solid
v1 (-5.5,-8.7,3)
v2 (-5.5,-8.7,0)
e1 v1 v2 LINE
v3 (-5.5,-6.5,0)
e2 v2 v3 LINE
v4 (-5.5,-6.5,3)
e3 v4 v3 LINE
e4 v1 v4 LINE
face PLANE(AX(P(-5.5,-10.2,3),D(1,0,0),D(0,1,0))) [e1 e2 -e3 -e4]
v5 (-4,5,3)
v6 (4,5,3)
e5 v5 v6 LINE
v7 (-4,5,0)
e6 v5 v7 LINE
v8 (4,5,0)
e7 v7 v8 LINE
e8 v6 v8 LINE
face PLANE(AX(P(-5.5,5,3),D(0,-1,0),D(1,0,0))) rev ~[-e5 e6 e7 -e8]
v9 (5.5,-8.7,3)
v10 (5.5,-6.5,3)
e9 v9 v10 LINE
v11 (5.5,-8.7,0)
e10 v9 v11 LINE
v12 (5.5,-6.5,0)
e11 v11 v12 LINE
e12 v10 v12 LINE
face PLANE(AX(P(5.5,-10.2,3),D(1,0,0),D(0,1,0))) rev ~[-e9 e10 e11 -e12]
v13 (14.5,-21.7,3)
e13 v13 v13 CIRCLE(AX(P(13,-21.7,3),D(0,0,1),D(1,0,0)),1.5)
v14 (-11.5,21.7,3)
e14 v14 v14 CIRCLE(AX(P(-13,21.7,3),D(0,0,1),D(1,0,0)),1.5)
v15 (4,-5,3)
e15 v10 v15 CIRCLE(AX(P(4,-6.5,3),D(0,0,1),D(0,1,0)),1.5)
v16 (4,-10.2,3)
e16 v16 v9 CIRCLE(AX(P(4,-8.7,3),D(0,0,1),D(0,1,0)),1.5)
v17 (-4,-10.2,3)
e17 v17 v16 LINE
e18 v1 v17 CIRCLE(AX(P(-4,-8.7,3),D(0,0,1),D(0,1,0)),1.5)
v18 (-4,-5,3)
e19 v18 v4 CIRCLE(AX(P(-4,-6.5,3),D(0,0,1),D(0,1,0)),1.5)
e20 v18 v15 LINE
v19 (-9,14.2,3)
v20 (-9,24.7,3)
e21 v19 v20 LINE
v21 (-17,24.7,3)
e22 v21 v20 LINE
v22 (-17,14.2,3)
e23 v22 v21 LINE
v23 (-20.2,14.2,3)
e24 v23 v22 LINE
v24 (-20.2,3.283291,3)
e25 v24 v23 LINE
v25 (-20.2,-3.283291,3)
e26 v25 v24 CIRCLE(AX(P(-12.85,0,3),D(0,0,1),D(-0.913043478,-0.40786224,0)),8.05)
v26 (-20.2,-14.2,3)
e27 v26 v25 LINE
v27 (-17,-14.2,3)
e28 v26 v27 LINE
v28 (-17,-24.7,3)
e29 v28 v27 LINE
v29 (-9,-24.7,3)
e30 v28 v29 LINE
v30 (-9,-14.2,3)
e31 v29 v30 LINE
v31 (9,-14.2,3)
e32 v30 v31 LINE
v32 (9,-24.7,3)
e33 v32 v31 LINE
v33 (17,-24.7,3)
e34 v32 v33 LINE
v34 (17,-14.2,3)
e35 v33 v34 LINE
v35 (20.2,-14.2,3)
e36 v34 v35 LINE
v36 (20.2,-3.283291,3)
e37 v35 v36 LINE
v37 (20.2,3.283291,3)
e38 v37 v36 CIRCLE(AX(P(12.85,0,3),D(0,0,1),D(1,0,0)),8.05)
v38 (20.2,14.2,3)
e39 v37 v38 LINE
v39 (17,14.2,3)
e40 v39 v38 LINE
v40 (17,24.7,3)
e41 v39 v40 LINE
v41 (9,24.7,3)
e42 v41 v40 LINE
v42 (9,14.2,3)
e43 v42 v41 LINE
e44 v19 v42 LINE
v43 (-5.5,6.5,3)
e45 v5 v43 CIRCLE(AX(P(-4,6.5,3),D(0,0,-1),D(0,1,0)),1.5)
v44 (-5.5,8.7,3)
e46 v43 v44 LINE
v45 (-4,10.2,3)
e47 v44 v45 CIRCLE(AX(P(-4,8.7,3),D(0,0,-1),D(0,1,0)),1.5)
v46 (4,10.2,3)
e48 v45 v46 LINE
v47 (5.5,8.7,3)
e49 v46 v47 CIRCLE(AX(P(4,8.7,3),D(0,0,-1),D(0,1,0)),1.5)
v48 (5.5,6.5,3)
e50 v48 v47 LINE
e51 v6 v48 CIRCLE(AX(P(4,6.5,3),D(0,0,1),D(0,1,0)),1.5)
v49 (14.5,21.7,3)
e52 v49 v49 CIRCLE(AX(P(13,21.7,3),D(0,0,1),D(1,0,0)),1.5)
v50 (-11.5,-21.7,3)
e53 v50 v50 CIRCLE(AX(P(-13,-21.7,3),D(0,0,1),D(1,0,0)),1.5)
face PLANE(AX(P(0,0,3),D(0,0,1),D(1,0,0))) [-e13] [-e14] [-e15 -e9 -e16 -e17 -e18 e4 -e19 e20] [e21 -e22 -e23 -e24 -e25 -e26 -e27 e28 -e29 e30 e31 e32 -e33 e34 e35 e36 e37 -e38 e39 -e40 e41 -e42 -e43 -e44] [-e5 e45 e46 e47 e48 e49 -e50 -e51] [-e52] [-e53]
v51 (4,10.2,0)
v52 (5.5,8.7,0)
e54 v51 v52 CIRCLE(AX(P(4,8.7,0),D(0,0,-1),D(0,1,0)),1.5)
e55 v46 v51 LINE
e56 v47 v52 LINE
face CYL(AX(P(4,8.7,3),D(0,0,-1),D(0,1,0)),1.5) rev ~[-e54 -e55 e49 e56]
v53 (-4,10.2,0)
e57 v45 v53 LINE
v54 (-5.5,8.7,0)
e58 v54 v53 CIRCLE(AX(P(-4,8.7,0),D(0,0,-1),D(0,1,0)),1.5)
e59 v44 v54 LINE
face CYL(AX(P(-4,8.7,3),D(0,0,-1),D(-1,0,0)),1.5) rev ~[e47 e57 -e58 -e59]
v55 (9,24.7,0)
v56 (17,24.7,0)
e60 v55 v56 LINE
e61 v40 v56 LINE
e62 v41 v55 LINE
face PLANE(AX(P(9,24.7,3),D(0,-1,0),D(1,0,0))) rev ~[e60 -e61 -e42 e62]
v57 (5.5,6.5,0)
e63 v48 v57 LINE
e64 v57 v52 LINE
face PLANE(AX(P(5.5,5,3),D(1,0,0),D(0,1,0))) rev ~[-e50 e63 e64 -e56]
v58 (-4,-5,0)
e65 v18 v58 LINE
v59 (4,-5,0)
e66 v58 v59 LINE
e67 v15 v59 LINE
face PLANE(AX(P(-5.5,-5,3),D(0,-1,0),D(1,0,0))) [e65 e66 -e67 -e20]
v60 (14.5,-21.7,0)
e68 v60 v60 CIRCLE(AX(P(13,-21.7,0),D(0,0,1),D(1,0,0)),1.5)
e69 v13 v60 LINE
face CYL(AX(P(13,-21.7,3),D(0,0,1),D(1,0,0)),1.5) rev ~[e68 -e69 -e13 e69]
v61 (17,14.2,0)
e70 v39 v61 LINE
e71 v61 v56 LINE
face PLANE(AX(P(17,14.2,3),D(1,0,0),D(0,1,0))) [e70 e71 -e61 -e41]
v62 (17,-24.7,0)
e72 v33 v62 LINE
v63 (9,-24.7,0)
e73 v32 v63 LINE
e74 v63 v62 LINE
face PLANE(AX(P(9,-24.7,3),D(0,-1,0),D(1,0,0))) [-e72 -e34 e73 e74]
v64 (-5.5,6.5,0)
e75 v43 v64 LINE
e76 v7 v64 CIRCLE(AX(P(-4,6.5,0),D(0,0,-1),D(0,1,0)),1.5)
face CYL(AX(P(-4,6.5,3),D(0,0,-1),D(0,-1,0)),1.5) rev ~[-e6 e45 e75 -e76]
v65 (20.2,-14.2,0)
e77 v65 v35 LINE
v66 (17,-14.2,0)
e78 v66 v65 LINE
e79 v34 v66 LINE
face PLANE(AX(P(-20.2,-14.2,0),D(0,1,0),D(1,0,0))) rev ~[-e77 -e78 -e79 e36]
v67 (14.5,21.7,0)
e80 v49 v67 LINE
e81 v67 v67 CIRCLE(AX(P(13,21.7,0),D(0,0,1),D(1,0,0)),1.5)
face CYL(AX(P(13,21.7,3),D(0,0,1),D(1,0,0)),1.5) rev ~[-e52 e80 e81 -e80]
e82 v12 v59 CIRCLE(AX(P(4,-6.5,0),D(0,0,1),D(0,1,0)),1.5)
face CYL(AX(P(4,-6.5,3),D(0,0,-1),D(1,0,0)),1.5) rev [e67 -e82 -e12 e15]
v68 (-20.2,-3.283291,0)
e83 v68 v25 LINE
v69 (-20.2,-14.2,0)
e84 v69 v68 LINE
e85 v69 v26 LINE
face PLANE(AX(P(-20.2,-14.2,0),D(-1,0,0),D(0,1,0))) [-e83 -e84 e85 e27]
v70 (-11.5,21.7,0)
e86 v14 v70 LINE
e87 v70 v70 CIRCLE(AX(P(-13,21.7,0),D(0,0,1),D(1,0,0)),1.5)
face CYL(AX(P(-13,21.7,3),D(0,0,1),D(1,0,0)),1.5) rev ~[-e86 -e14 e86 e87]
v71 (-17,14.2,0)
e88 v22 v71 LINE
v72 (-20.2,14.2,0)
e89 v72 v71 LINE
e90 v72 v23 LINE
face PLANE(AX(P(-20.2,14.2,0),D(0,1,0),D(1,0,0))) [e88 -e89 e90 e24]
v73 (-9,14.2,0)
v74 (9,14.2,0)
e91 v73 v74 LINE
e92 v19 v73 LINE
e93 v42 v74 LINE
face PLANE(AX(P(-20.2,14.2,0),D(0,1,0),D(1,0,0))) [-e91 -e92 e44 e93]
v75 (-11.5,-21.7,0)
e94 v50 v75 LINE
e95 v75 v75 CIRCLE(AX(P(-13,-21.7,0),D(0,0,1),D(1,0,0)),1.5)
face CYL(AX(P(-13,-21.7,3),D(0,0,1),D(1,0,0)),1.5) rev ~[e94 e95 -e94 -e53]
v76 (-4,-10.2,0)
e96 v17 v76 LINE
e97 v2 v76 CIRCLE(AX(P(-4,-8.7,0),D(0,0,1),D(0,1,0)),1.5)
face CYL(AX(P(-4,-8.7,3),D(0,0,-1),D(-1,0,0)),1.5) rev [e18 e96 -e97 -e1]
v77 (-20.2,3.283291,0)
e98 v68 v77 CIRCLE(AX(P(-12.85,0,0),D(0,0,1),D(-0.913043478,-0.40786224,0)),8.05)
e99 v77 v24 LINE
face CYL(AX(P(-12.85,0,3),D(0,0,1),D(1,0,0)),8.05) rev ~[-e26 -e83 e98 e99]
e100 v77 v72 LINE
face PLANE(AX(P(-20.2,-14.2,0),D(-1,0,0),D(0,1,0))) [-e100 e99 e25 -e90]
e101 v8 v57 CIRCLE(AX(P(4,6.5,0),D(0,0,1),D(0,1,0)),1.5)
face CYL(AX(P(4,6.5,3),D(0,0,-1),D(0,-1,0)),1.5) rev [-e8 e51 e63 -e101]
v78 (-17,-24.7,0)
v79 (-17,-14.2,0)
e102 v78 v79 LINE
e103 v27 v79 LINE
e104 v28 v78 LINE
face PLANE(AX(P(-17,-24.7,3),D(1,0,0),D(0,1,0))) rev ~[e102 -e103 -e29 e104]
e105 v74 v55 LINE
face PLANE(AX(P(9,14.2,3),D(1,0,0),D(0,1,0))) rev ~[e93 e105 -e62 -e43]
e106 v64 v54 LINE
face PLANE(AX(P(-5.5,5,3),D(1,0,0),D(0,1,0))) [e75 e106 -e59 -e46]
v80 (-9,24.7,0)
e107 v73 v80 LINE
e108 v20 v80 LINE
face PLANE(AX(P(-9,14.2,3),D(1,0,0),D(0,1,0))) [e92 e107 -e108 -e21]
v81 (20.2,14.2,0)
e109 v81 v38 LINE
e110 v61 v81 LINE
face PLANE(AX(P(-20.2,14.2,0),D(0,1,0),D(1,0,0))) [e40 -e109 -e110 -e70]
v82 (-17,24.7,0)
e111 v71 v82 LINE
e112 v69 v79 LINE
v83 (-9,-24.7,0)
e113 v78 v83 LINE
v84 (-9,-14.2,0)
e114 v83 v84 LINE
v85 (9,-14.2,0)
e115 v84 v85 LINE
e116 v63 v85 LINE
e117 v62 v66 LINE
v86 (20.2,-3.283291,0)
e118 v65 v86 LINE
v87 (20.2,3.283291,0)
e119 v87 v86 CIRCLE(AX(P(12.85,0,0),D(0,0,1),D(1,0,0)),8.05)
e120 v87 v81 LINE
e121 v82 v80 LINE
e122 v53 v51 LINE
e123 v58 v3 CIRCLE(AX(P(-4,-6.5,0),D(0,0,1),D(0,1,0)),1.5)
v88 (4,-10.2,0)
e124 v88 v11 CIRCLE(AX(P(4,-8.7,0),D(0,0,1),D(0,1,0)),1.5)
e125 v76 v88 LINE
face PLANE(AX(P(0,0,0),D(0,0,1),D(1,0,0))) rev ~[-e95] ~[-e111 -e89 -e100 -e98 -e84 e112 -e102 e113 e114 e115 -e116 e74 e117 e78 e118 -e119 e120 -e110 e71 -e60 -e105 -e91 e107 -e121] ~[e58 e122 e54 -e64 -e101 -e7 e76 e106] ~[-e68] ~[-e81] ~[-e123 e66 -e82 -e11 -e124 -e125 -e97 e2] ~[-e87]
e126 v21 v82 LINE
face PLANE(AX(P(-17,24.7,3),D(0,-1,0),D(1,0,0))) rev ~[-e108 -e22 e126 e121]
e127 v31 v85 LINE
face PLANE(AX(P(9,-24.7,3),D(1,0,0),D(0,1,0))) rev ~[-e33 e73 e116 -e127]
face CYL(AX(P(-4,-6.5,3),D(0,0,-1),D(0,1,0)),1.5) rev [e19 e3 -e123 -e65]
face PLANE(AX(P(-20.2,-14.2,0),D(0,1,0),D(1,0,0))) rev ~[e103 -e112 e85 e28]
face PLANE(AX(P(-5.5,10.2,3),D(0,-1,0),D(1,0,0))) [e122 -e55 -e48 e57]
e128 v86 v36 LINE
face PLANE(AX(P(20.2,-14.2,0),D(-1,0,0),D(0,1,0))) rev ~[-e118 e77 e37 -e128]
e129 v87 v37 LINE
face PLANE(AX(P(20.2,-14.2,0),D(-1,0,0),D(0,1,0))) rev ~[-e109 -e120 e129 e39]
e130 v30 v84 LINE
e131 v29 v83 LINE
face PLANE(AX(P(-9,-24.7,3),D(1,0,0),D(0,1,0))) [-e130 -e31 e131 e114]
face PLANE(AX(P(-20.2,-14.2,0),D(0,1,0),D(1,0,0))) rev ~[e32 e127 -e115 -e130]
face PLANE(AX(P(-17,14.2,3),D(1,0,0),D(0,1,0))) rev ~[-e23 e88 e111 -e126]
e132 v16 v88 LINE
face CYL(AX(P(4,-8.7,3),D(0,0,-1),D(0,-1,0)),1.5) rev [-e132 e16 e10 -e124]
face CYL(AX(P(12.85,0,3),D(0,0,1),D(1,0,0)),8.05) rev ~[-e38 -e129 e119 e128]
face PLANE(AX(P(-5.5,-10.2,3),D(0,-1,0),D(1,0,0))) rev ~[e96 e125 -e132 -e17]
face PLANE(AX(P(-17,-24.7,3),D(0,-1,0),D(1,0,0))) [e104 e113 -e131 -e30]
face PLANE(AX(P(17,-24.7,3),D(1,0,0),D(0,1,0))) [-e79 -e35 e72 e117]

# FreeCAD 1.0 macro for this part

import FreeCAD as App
import Part
import Sketcher


def edges_at(feature, points):
    """Names of the edges that pass closest to the given points."""
    edges = feature.Shape.Edges
    near = lambda p: min(range(len(edges)), key=lambda i: edges[i].distToShape(Part.Vertex(*p))[0])
    return sorted({f"Edge{near(p) + 1}" for p in points})


def add_polygon(sketch, points):
    """Adds a closed chain of lines whose ends are joined by coincident constraints."""
    first, n = sketch.GeometryCount, len(points)
    for a, b in zip(points, points[1:] + points[:1]):
        sketch.addGeometry(Part.LineSegment(App.Vector(*a, 0), App.Vector(*b, 0)), False)
    for i in range(n):
        sketch.addConstraint(Sketcher.Constraint("Coincident", first + i, 2, first + (i + 1) % n, 1))

doc = App.newDocument("Part")
body = doc.addObject("PartDesign::Body", "Body")

# Sketch on XY plane
sketch1 = body.newObject("Sketcher::SketchObject", "Sketch")
sketch1.AttachmentSupport = (doc.getObject("XY_Plane"), [""])
sketch1.MapMode = "FlatFace"
add_polygon(sketch1, [(-20.2, 14.2), (-20.2, -14.2), (20.2, -14.2), (20.2, 14.2)])  # lines 0-3
sketch1.addConstraint(Sketcher.Constraint("Vertical", 0))
sketch1.addConstraint(Sketcher.Constraint("Horizontal", 1))
sketch1.addConstraint(Sketcher.Constraint("Vertical", 2))
sketch1.addConstraint(Sketcher.Constraint("Horizontal", 3))
sketch1.addConstraint(Sketcher.Constraint("Symmetric", 0, 2, 2, 2, -1, 1))
sketch1.addConstraint(Sketcher.Constraint("DistanceX", 1, 1, 1, 2, 40.4))
sketch1.addConstraint(Sketcher.Constraint("DistanceY", 0, 2, 0, 1, 28.4))
pad1 = body.newObject("PartDesign::Pad", "Pad")
pad1.Profile = sketch1
pad1.Length = 3

# Sketch on XY plane
sketch2 = body.newObject("Sketcher::SketchObject", "Sketch001")
sketch2.AttachmentSupport = (doc.getObject("XY_Plane"), [""])
sketch2.MapMode = "FlatFace"
sketch2.AttachmentOffset = App.Placement(App.Vector(0, 0, 3), App.Rotation())
add_polygon(sketch2, [(-17, -14.2), (-17, -24.7), (-9, -24.7), (-9, -14.2)])  # lines 0-3
sketch2.addGeometry(Part.Circle(App.Vector(-13, -21.7, 0), App.Vector(0, 0, 1), 1.5), False)  # 4
add_polygon(sketch2, [(9, -14.2), (9, -24.7), (17, -24.7), (17, -14.2)])  # lines 5-8
sketch2.addGeometry(Part.Circle(App.Vector(13, -21.7, 0), App.Vector(0, 0, 1), 1.5), False)  # 9
add_polygon(sketch2, [(9, 24.7), (9, 14.2), (17, 14.2), (17, 24.7)])  # lines 10-13
sketch2.addGeometry(Part.Circle(App.Vector(13, 21.7, 0), App.Vector(0, 0, 1), 1.5), False)  # 14
add_polygon(sketch2, [(-17, 24.7), (-17, 14.2), (-9, 14.2), (-9, 24.7)])  # lines 15-18
sketch2.addGeometry(Part.Circle(App.Vector(-13, 21.7, 0), App.Vector(0, 0, 1), 1.5), False)  # 19
sketch2.addConstraint(Sketcher.Constraint("Vertical", 0))
sketch2.addConstraint(Sketcher.Constraint("Horizontal", 1))
sketch2.addConstraint(Sketcher.Constraint("Vertical", 2))
sketch2.addConstraint(Sketcher.Constraint("Horizontal", 3))
sketch2.addConstraint(Sketcher.Constraint("Vertical", 5))
sketch2.addConstraint(Sketcher.Constraint("Horizontal", 6))
sketch2.addConstraint(Sketcher.Constraint("Vertical", 7))
sketch2.addConstraint(Sketcher.Constraint("Horizontal", 8))
sketch2.addConstraint(Sketcher.Constraint("Vertical", 10))
sketch2.addConstraint(Sketcher.Constraint("Horizontal", 11))
sketch2.addConstraint(Sketcher.Constraint("Vertical", 12))
sketch2.addConstraint(Sketcher.Constraint("Horizontal", 13))
sketch2.addConstraint(Sketcher.Constraint("Vertical", 15))
sketch2.addConstraint(Sketcher.Constraint("Horizontal", 16))
sketch2.addConstraint(Sketcher.Constraint("Vertical", 17))
sketch2.addConstraint(Sketcher.Constraint("Horizontal", 18))
sketch2.addConstraint(Sketcher.Constraint("Equal", 4, 9))
sketch2.addConstraint(Sketcher.Constraint("Equal", 9, 14))
sketch2.addConstraint(Sketcher.Constraint("Equal", 14, 19))
sketch2.addConstraint(Sketcher.Constraint("Symmetric", 4, 3, 14, 3, -1, 1))
sketch2.addConstraint(Sketcher.Constraint("Symmetric", 9, 3, 19, 3, -1, 1))
sketch2.addConstraint(Sketcher.Constraint("Symmetric", 2, 2, 10, 2, -1, 1))
sketch2.addConstraint(Sketcher.Constraint("Symmetric", 0, 2, 12, 2, -1, 1))
sketch2.addConstraint(Sketcher.Constraint("Symmetric", 7, 2, 15, 2, -1, 1))
sketch2.addConstraint(Sketcher.Constraint("Symmetric", 5, 2, 17, 2, -1, 1))
sketch2.addConstraint(Sketcher.Constraint("Symmetric", 4, 3, 9, 3, -2))
sketch2.addConstraint(Sketcher.Constraint("Symmetric", 1, 2, 5, 2, -2))
sketch2.addConstraint(Sketcher.Constraint("Symmetric", 3, 2, 7, 2, -2))
sketch2.addConstraint(Sketcher.Constraint("Diameter", 4, 3.0))
sketch2.addConstraint(Sketcher.Constraint("DistanceX", 1, 1, 1, 2, 8.0))
sketch2.addConstraint(Sketcher.Constraint("DistanceY", 0, 2, 0, 1, 10.5))
sketch2.addConstraint(Sketcher.Constraint("DistanceX", 4, 3, -1, 1, 13.0))
sketch2.addConstraint(Sketcher.Constraint("DistanceX", 0, 2, -1, 1, 17.0))
sketch2.addConstraint(Sketcher.Constraint("DistanceY", 0, 2, 4, 3, 3.0))
sketch2.addConstraint(Sketcher.Constraint("DistanceY", 4, 3, -1, 1, 21.7))
pad2 = body.newObject("PartDesign::Pad", "Pad001")
pad2.Profile = sketch2
pad2.Length = 3
pad2.Reversed = True

# Sketch on XY plane
sketch3 = body.newObject("Sketcher::SketchObject", "Sketch002")
sketch3.AttachmentSupport = (doc.getObject("XY_Plane"), [""])
sketch3.MapMode = "FlatFace"
sketch3.AttachmentOffset = App.Placement(App.Vector(0, 0, 3), App.Rotation())
sketch3.addGeometry(Part.Circle(App.Vector(-12.85, 0, 0), App.Vector(0, 0, 1), 8.05), False)  # 0
sketch3.addGeometry(Part.Circle(App.Vector(12.85, 0, 0), App.Vector(0, 0, 1), 8.05), False)  # 1
add_polygon(sketch3, [(-5.5, -5), (-5.5, -10.2), (5.5, -10.2), (5.5, -5)])  # lines 2-5
add_polygon(sketch3, [(-5.5, 10.2), (-5.5, 5), (5.5, 5), (5.5, 10.2)])  # lines 6-9
sketch3.addConstraint(Sketcher.Constraint("Vertical", 2))
sketch3.addConstraint(Sketcher.Constraint("Horizontal", 3))
sketch3.addConstraint(Sketcher.Constraint("Vertical", 4))
sketch3.addConstraint(Sketcher.Constraint("Horizontal", 5))
sketch3.addConstraint(Sketcher.Constraint("Vertical", 6))
sketch3.addConstraint(Sketcher.Constraint("Horizontal", 7))
sketch3.addConstraint(Sketcher.Constraint("Vertical", 8))
sketch3.addConstraint(Sketcher.Constraint("Horizontal", 9))
sketch3.addConstraint(Sketcher.Constraint("Equal", 0, 1))
sketch3.addConstraint(Sketcher.Constraint("Symmetric", 0, 3, 1, 3, -1, 1))
sketch3.addConstraint(Sketcher.Constraint("Symmetric", 4, 2, 6, 2, -1, 1))
sketch3.addConstraint(Sketcher.Constraint("Symmetric", 2, 2, 8, 2, -1, 1))
sketch3.addConstraint(Sketcher.Constraint("PointOnObject", 0, 3, -1))
sketch3.addConstraint(Sketcher.Constraint("Vertical", 5, 2, 6, 2))
sketch3.addConstraint(Sketcher.Constraint("Diameter", 0, 16.1))
sketch3.addConstraint(Sketcher.Constraint("DistanceX", 3, 1, 3, 2, 11.0))
sketch3.addConstraint(Sketcher.Constraint("DistanceY", 2, 2, 2, 1, 5.2))
sketch3.addConstraint(Sketcher.Constraint("DistanceY", 4, 2, -1, 1, 5.0))
sketch3.addConstraint(Sketcher.Constraint("DistanceX", 0, 3, 1, 3, 25.7))
pocket1 = body.newObject("PartDesign::Pocket", "Pocket")
pocket1.Profile = sketch3
pocket1.Type = "ThroughAll"
doc.recompute()

fillet = body.newObject("PartDesign::Fillet", "Fillet")
fillet.Base = (pocket1, edges_at(pocket1, [(-5.5, -5, 1.5), (5.5, -5, 1.5)]))
fillet.Radius = 1.5
doc.recompute()

fillet2 = body.newObject("PartDesign::Fillet", "Fillet001")
fillet2.Base = (fillet, edges_at(fillet, [(-5.5, -10.2, 1.5), (5.5, -10.2, 1.5)]))
fillet2.Radius = 1.5
doc.recompute()

fillet3 = body.newObject("PartDesign::Fillet", "Fillet002")
fillet3.Base = (fillet2, edges_at(fillet2, [
    (5.5, 10.2, 1.5),
    (5.5, 5, 1.5),
    (-5.5, 5, 1.5),
    (-5.5, 10.2, 1.5),
]))
fillet3.Radius = 1.5

doc.recompute()
